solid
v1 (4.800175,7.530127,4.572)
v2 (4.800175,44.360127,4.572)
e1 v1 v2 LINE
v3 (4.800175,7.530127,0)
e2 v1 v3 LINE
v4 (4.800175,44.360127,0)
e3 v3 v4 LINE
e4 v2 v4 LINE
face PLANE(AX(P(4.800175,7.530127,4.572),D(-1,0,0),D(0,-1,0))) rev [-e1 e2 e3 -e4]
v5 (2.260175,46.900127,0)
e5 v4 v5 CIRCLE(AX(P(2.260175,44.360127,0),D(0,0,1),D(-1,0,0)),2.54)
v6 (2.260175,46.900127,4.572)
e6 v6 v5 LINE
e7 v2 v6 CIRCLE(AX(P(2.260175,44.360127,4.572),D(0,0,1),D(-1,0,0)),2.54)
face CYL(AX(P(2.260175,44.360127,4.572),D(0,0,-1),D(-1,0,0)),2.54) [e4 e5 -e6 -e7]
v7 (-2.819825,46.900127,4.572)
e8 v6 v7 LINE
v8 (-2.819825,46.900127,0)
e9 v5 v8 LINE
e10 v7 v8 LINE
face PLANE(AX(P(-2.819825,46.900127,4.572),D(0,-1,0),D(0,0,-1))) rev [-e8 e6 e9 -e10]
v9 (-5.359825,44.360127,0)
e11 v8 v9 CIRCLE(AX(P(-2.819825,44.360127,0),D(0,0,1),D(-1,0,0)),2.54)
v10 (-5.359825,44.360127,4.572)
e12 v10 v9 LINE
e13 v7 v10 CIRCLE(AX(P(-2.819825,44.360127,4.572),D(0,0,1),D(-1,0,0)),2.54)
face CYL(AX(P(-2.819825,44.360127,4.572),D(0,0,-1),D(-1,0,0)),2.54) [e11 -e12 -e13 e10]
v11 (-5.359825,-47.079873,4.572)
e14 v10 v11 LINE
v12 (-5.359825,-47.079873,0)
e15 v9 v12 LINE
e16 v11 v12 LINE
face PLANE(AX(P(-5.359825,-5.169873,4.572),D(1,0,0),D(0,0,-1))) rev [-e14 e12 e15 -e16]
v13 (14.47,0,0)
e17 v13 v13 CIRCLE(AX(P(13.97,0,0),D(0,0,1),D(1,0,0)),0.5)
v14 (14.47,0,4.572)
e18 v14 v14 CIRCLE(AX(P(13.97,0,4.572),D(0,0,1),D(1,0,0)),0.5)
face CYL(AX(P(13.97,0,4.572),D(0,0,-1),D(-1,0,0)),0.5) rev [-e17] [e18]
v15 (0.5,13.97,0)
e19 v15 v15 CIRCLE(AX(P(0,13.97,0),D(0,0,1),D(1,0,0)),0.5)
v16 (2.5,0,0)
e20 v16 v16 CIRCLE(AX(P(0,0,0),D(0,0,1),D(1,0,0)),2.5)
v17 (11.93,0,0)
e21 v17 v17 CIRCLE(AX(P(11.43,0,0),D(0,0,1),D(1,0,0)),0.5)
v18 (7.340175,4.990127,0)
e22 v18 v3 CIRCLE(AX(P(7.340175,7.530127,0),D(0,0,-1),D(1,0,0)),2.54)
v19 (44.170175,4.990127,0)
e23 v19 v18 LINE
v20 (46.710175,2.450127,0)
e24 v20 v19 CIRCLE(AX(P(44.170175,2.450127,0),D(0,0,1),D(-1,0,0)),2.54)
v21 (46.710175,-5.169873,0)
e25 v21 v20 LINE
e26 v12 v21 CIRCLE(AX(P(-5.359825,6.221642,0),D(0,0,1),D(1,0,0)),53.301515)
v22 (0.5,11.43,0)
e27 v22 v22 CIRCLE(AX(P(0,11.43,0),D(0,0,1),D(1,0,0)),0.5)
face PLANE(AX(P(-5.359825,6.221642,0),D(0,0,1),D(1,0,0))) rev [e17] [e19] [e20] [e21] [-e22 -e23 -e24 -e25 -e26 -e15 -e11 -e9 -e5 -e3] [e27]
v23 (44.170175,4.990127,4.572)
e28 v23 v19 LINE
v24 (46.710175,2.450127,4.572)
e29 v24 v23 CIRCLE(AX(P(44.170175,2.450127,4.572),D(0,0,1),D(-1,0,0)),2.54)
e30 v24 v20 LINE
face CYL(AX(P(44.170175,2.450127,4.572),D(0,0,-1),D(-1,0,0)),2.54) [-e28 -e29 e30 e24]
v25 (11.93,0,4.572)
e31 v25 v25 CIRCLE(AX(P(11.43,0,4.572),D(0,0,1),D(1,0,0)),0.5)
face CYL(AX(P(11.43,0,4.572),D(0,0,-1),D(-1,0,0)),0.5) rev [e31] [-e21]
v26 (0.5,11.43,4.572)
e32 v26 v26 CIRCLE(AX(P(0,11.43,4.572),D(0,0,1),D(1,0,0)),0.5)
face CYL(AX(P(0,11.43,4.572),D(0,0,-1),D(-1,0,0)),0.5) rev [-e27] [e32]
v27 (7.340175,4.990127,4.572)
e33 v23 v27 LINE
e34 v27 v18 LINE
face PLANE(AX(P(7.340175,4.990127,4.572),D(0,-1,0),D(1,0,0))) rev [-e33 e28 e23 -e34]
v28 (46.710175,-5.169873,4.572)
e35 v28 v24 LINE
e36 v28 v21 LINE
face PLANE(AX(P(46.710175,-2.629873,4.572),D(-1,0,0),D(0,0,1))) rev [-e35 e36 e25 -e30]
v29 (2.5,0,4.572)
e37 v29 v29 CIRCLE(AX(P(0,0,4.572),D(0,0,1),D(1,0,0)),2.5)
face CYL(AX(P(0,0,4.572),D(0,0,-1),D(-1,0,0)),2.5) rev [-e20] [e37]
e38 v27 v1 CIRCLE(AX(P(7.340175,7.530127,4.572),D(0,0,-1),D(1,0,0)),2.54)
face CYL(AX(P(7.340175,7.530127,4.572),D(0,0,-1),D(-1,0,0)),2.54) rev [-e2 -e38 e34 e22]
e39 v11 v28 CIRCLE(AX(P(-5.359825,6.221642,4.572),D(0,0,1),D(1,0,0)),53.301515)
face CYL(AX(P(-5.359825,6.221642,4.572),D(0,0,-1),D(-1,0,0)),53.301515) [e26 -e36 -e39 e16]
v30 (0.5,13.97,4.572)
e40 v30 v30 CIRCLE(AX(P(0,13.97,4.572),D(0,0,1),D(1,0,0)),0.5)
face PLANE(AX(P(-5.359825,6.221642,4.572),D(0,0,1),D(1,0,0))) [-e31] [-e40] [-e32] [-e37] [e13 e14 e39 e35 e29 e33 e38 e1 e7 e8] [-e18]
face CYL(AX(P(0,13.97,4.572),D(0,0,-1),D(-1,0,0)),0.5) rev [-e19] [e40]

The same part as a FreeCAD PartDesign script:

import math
import FreeCAD as App
import Part
import Sketcher

V = App.Vector
Q = App.Units.Quantity

doc = App.newDocument("Part")
body = doc.addObject("PartDesign::Body", "Body")

# Sketch on XY plane
sketch1 = doc.addObject("Sketcher::SketchObject", "Sketch")
body.addObject(sketch1)
sketch1.AttachmentSupport = (doc.XY_Plane, [""])
sketch1.MapMode = "FlatFace"
sketch1.addGeometry([
    Part.LineSegment(V(4.800175, 7.530127, 0), V(4.800175, 44.360127, 0)),  # 0
    Part.ArcOfCircle(Part.Circle(V(2.260175, 44.360127, 0), V(0, 0, 1), 2.54), math.radians(0), math.radians(90)),  # 1
    Part.LineSegment(V(2.260175, 46.900127, 0), V(-2.819825, 46.900127, 0)),  # 2
    Part.ArcOfCircle(Part.Circle(V(-2.819825, 44.360127, 0), V(0, 0, 1), 2.54), math.radians(90), math.radians(180)),  # 3
    Part.LineSegment(V(-5.359825, 44.360127, 0), V(-5.359825, -47.079873, 0)),  # 4
    Part.ArcOfCircle(Part.Circle(V(-5.359825, 6.221642, 0), V(0, 0, 1), 53.301515), math.radians(-90), math.radians(-12.34035)),  # 5
    Part.LineSegment(V(46.710175, -5.169873, 0), V(46.710175, 2.450127, 0)),  # 6
    Part.ArcOfCircle(Part.Circle(V(44.170175, 2.450127, 0), V(0, 0, 1), 2.54), math.radians(0), math.radians(90)),  # 7
    Part.LineSegment(V(44.170175, 4.990127, 0), V(7.340175, 4.990127, 0)),  # 8
    Part.ArcOfCircle(Part.Circle(V(7.340175, 7.530127, 0), V(0, 0, 1), 2.54), math.radians(180), math.radians(270)),  # 9
    Part.Circle(V(0, 0, 0), V(0, 0, 1), 2.5),  # 10
    Part.Circle(V(11.43, 0, 0), V(0, 0, 1), 0.5),  # 11
    Part.Circle(V(13.97, 0, 0), V(0, 0, 1), 0.5),  # 12
    Part.Circle(V(0, 11.43, 0), V(0, 0, 1), 0.5),  # 13
    Part.Circle(V(0, 13.97, 0), V(0, 0, 1), 0.5),  # 14
], False)
sketch1.addConstraint([
    Sketcher.Constraint("Tangent", 0, 2, 1, 1),
    Sketcher.Constraint("Tangent", 1, 2, 2, 1),
    Sketcher.Constraint("Tangent", 2, 2, 3, 1),
    Sketcher.Constraint("Tangent", 3, 2, 4, 1),
    Sketcher.Constraint("Coincident", 4, 2, 5, 1),
    Sketcher.Constraint("Coincident", 5, 2, 6, 1),
    Sketcher.Constraint("Tangent", 6, 2, 7, 1),
    Sketcher.Constraint("Tangent", 7, 2, 8, 1),
    Sketcher.Constraint("Tangent", 8, 2, 9, 2),
    Sketcher.Constraint("Tangent", 9, 1, 0, 1),
    Sketcher.Constraint("Vertical", 0),
    Sketcher.Constraint("Horizontal", 2),
    Sketcher.Constraint("Vertical", 4),
    Sketcher.Constraint("Vertical", 6),
    Sketcher.Constraint("Horizontal", 8),
    Sketcher.Constraint("Coincident", 10, 3, -1, 1),
    Sketcher.Constraint("Equal", 1, 3),
    Sketcher.Constraint("Equal", 3, 7),
    Sketcher.Constraint("Equal", 7, 9),
    Sketcher.Constraint("Equal", 11, 12),
    Sketcher.Constraint("Equal", 12, 13),
    Sketcher.Constraint("Equal", 13, 14),
    Sketcher.Constraint("PointOnObject", 11, 3, -1),
    Sketcher.Constraint("PointOnObject", 12, 3, -1),
    Sketcher.Constraint("PointOnObject", 13, 3, -2),
    Sketcher.Constraint("PointOnObject", 14, 3, -2),
    Sketcher.Constraint("Vertical", 5, 3, 3, 2),
    Sketcher.Constraint("Equal", 8, 0),
    Sketcher.Constraint("Radius", 1, Q("0.1 in")),
    Sketcher.Constraint("DistanceX", 2, 2, 2, 1, Q("0.2 in")),
    Sketcher.Constraint("DistanceY", 4, 2, 4, 1, Q("3.6 in")),
    Sketcher.Constraint("DistanceY", 6, 1, 6, 2, Q("0.3 in")),
    Sketcher.Constraint("DistanceX", 8, 2, 8, 1, Q("1.45 in")),
    Sketcher.Constraint("DistanceX", 11, 3, 12, 3, Q("0.1 in")),
    Sketcher.Constraint("DistanceY", 13, 3, 14, 3, Q("0.1 in")),
    Sketcher.Constraint("Diameter", 10, 5.0),
    Sketcher.Constraint("Diameter", 11, 1.0),
    Sketcher.Constraint("DistanceX", -1, 1, 11, 3, Q("0.45 in")),
    Sketcher.Constraint("DistanceY", -1, 1, 13, 3, Q("0.45 in")),
    Sketcher.Constraint("DistanceY", -1, 1, 5, 3, 6.221642),
    Sketcher.Constraint("DistanceX", -1, 1, 1, 3, 2.260175),
])
pad1 = doc.addObject("PartDesign::Pad", "Pad")
body.addObject(pad1)
pad1.Profile = sketch1
pad1.Length = Q("0.18 in")

doc.recompute()
